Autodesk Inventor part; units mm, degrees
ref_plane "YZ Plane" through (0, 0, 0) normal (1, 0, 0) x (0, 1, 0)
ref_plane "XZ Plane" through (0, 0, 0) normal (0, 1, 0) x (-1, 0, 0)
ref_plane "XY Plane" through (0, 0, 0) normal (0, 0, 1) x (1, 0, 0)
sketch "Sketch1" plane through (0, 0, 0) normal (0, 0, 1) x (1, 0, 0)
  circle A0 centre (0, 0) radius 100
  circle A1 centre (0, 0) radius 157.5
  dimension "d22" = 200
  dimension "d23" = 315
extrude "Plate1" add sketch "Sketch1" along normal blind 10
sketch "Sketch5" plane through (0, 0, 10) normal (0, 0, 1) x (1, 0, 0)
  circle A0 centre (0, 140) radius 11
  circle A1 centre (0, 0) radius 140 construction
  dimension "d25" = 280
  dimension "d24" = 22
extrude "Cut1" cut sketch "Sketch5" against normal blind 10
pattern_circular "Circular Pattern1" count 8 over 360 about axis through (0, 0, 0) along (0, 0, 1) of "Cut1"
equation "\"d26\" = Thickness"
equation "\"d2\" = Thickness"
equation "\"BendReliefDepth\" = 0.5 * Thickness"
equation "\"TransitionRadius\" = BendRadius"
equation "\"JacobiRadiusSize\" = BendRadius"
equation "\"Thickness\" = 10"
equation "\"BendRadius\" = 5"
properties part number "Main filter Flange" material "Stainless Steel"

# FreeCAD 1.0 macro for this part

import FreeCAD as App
import Part
import Sketcher
Q = App.Units.Quantity

doc = App.newDocument("Part")
body = doc.addObject("PartDesign::Body", "Body")

# Sketch on XY plane
sketch1 = doc.addObject("Sketcher::SketchObject", "Sketch")
body.addObject(sketch1)
sketch1.AttachmentSupport = (doc.XY_Plane, [""])
sketch1.MapMode = "FlatFace"
sketch1.addGeometry([
    Part.Circle(App.Vector(0, 0, 0), App.Vector(0, 0, 1), 158),
    Part.Circle(App.Vector(0, 0, 0), App.Vector(0, 0, 1), 100),
], False)
sketch1.addConstraint([
    Sketcher.Constraint("Coincident", 0, 3, -1, 1),
    Sketcher.Constraint("Coincident", 1, 3, -1, 1),
    Sketcher.Constraint("Diameter", 0, Q("315 mm")),
    Sketcher.Constraint("Diameter", 1, Q("200 mm")),
])
pad1 = doc.addObject("PartDesign::Pad", "Pad")
body.addObject(pad1)
pad1.Profile = sketch1
pad1.Length = 10

# Sketch on XY plane
sketch2 = doc.addObject("Sketcher::SketchObject", "Sketch001")
body.addObject(sketch2)
sketch2.AttachmentSupport = (doc.XY_Plane, [""])
sketch2.MapMode = "FlatFace"
sketch2.AttachmentOffset = App.Placement(App.Vector(0, 0, 10), App.Rotation())
sketch2.addGeometry(Part.Circle(App.Vector(0, 140, 0), App.Vector(0, 0, 1), 11), False)
sketch2.addConstraint([
    Sketcher.Constraint("PointOnObject", 0, 3, -2),
    Sketcher.Constraint("Diameter", 0, Q("22 mm")),
    Sketcher.Constraint("DistanceY", -1, 1, 0, 3, Q("140 mm")),
])
pocket1 = doc.addObject("PartDesign::Pocket", "Pocket")
body.addObject(pocket1)
pocket1.Profile = sketch2
pocket1.Length = 10
doc.recompute()

polarpattern = doc.addObject("PartDesign::PolarPattern", "PolarPattern")
body.addObject(polarpattern)
polarpattern.Originals = [pocket1]
polarpattern.Axis = (doc.Z_Axis, [""])
polarpattern.Angle = 360
polarpattern.Occurrences = 8
body.Tip = polarpattern

doc.recompute()
